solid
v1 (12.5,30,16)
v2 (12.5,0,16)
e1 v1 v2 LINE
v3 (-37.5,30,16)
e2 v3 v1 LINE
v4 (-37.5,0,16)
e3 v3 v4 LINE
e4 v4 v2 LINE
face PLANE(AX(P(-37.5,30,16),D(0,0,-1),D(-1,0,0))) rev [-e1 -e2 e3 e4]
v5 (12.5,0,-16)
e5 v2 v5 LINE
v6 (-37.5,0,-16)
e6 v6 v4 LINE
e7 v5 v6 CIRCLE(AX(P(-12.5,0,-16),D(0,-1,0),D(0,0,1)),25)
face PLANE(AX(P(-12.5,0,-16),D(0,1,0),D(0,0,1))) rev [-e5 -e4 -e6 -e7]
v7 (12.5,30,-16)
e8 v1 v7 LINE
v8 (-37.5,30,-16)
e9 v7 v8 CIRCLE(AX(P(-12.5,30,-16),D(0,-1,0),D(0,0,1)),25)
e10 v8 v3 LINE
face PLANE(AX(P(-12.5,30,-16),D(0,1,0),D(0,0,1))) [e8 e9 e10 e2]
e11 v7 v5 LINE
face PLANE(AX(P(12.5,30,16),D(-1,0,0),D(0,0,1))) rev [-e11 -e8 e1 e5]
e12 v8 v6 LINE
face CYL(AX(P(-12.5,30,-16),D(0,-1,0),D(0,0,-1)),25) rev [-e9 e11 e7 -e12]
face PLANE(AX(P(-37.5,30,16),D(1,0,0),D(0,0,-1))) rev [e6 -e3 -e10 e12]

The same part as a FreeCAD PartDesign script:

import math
import FreeCAD as App
import Part
import Sketcher
from FreeCAD import Vector
Q = App.Units.Quantity

doc = App.newDocument("Part")
body = doc.addObject("PartDesign::Body", "Body")

# Sketch on XZ plane
sketch1 = body.newObject("Sketcher::SketchObject", "Sketch")
sketch1.AttachmentSupport = (doc.getObject("XZ_Plane"), [""])
sketch1.MapMode = "FlatFace"
sketch1.addGeometry(Part.LineSegment(Vector(-37.5, 16, 0), Vector(12.5, 16, 0)), False)
sketch1.addGeometry(Part.LineSegment(Vector(12.5, 16, 0), Vector(12.5, -16, 0)), False)
sketch1.addGeometry(Part.ArcOfCircle(Part.Circle(Vector(-12.5, -16, 0), Vector(0, 0, 1), 25), math.radians(0), math.radians(180)), False)
sketch1.addGeometry(Part.LineSegment(Vector(-37.5, -16, 0), Vector(-37.5, 16, 0)), False)
sketch1.addConstraint(Sketcher.Constraint("Coincident", 0, 2, 1, 1))
sketch1.addConstraint(Sketcher.Constraint("Tangent", 1, 2, 2, 1))
sketch1.addConstraint(Sketcher.Constraint("Tangent", 2, 2, 3, 1))
sketch1.addConstraint(Sketcher.Constraint("Coincident", 3, 2, 0, 1))
sketch1.addConstraint(Sketcher.Constraint("Horizontal", 0))
sketch1.addConstraint(Sketcher.Constraint("Vertical", 1))
sketch1.addConstraint(Sketcher.Constraint("Vertical", 3))
sketch1.addConstraint(Sketcher.Constraint("Radius", 2, Q("25 mm")))
sketch1.addConstraint(Sketcher.Constraint("DistanceY", 1, 2, 1, 1, Q("32 mm")))
sketch1.addConstraint(Sketcher.Constraint("DistanceY", 2, 3, -1, 1, Q("16 mm")))
sketch1.addConstraint(Sketcher.Constraint("DistanceX", 2, 3, -1, 1, Q("12.5 mm")))
pad1 = body.newObject("PartDesign::Pad", "Pad")
pad1.Profile = sketch1
pad1.Length = 30
pad1.Reversed = True

doc.recompute()
